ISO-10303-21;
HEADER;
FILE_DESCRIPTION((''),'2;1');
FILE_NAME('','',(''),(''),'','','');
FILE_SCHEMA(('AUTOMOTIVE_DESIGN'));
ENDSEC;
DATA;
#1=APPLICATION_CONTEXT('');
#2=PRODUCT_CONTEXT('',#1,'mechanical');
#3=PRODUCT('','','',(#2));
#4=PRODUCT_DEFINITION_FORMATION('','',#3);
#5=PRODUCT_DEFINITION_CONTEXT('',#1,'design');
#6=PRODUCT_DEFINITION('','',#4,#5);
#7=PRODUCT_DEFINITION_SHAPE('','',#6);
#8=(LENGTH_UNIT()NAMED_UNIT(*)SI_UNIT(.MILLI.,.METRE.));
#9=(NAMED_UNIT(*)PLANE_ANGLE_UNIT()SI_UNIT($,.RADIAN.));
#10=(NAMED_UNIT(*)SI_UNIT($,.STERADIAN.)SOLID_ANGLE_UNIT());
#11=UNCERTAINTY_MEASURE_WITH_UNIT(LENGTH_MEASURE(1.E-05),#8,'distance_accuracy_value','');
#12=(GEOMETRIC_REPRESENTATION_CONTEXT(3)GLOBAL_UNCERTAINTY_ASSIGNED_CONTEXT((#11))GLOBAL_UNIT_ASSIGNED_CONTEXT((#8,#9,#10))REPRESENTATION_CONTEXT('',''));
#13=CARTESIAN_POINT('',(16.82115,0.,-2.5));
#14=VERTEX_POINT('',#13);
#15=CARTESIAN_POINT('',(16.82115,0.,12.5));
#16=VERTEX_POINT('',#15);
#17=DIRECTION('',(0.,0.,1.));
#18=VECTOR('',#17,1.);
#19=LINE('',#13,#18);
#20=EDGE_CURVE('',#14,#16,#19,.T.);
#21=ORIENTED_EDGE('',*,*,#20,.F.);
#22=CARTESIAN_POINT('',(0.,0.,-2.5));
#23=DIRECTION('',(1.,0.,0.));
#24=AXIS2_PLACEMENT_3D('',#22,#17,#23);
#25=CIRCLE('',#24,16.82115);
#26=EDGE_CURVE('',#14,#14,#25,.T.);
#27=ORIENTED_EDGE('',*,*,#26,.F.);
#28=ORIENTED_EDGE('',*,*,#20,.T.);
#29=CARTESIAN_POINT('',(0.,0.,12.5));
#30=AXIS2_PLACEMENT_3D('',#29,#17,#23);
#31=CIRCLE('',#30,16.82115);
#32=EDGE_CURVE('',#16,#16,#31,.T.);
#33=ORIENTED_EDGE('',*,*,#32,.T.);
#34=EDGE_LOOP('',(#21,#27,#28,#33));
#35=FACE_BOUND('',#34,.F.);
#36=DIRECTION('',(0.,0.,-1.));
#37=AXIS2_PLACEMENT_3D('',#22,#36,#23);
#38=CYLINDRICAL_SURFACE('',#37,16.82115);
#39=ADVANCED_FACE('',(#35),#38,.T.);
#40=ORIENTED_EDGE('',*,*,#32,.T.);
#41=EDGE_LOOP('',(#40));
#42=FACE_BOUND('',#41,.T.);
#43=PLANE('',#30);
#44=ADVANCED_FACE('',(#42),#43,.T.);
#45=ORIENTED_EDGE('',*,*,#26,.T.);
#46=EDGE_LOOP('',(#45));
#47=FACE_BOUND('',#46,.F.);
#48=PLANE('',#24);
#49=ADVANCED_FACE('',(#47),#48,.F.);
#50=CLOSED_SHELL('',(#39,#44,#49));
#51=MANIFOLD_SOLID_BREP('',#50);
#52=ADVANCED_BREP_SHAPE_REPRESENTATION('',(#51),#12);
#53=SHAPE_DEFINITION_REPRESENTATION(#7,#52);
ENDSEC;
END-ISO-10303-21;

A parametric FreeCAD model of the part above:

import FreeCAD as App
import Part
import Sketcher
from FreeCAD import Vector

doc = App.newDocument("Part")
body = doc.addObject("PartDesign::Body", "Body")

sketch1 = body.newObject("Sketcher::SketchObject", "Sketch")
sketch1.AttachmentSupport = (doc.getObject("XY_Plane"), [""])
sketch1.MapMode = "FlatFace"
sketch1.AttachmentOffset = App.Placement(Vector(0, 0, -2.5), App.Rotation())
sketch1.addGeometry(Part.Circle(Vector(0, 0, 0), Vector(0, 0, 1), 16.82115), False)
sketch1.addConstraint([
    Sketcher.Constraint("Coincident", 0, 3, -1, 1),
    Sketcher.Constraint("Diameter", 0, 33.6423),
])
pad1 = body.newObject("PartDesign::Pad", "Pad")
pad1.Profile = sketch1
pad1.Length = 15

doc.recompute()
